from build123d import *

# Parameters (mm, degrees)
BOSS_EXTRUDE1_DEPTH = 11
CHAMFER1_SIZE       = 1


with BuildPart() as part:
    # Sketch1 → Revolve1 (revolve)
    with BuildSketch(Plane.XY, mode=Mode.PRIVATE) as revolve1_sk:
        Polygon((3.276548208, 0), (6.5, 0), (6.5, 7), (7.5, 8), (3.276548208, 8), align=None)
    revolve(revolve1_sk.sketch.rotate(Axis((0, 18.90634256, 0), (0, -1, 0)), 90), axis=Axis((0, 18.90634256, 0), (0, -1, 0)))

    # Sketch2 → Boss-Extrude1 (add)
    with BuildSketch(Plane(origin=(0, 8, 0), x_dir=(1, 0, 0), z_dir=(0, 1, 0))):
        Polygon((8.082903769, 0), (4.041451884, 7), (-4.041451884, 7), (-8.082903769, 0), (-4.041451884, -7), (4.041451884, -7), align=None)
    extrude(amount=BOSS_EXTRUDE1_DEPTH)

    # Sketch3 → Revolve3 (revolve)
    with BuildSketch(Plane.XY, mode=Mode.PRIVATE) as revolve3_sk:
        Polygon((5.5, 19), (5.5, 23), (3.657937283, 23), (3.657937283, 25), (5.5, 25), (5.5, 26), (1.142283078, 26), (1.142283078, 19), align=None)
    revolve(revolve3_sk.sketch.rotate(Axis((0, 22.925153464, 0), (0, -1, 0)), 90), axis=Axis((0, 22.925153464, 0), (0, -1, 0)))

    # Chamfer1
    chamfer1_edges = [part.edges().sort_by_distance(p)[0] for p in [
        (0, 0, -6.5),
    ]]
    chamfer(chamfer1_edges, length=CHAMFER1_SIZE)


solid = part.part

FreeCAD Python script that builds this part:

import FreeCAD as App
import Part
import Sketcher
from FreeCAD import Vector
Q = App.Units.Quantity


def edges_at(feature, points):
    """Names of the edges that pass closest to the given points."""
    edges = feature.Shape.Edges
    near = lambda p: min(range(len(edges)), key=lambda i: edges[i].distToShape(Part.Vertex(*p))[0])
    return sorted({f"Edge{near(p) + 1}" for p in points})

doc = App.newDocument("Part")
body = doc.addObject("PartDesign::Body", "Body")

# Sketch on XY plane
sketch1 = body.newObject("Sketcher::SketchObject", "Sketch")
sketch1.AttachmentSupport = (doc.getObject("XY_Plane"), [""])
sketch1.MapMode = "FlatFace"
sketch1.addGeometry([
    Part.LineSegment(Vector(3.3, 0, 0), Vector(6.5, 0, 0)),  # 0
    Part.LineSegment(Vector(6.5, 0, 0), Vector(6.5, 7, 0)),  # 1
    Part.LineSegment(Vector(6.5, 7, 0), Vector(7.5, 8, 0)),  # 2
    Part.LineSegment(Vector(7.5, 8, 0), Vector(3.3, 8, 0)),  # 3
    Part.LineSegment(Vector(3.3, 8, 0), Vector(3.3, 0, 0)),  # 4
], False)
sketch1.addConstraint([
    Sketcher.Constraint("Coincident", 0, 2, 1, 1),
    Sketcher.Constraint("Coincident", 1, 2, 2, 1),
    Sketcher.Constraint("Coincident", 2, 2, 3, 1),
    Sketcher.Constraint("Coincident", 3, 2, 4, 1),
    Sketcher.Constraint("Coincident", 4, 2, 0, 1),
    Sketcher.Constraint("Horizontal", 0),
    Sketcher.Constraint("Vertical", 1),
    Sketcher.Constraint("Horizontal", 3),
    Sketcher.Constraint("Vertical", 4),
    Sketcher.Constraint("PointOnObject", 0, 2, -1),
    Sketcher.Constraint("DistanceY", 1, 1, 1, 2, Q("7 mm")),
    Sketcher.Constraint("DistanceY", 4, 2, 4, 1, Q("8 mm")),
    Sketcher.Constraint("Angle", 2, Q("45 deg")),
    Sketcher.Constraint("DistanceX", -1, 1, 0, 2, Q("6.5 mm")),
    Sketcher.Constraint("DistanceX", 0, 1, 0, 2, Q("3.223452 mm")),
])
revolution = body.newObject("PartDesign::Revolution", "Revolution")
revolution.Profile = sketch1
revolution.ReferenceAxis = (sketch1, ["V_Axis"])
revolution.Angle = 360

# Sketch on XZ plane
sketch2 = body.newObject("Sketcher::SketchObject", "Sketch001")
sketch2.AttachmentSupport = (doc.getObject("XZ_Plane"), [""])
sketch2.MapMode = "FlatFace"
sketch2.AttachmentOffset = App.Placement(Vector(0, 0, -8), App.Rotation())
sketch2.addGeometry([
    Part.LineSegment(Vector(8, 0, 0), Vector(4, -7, 0)),  # 0
    Part.LineSegment(Vector(4, -7, 0), Vector(-4, -7, 0)),  # 1
    Part.LineSegment(Vector(-4, -7, 0), Vector(-8, 0, 0)),  # 2
    Part.LineSegment(Vector(-8, 0, 0), Vector(-4, 7, 0)),  # 3
    Part.LineSegment(Vector(-4, 7, 0), Vector(4, 7, 0)),  # 4
    Part.LineSegment(Vector(4, 7, 0), Vector(8, 0, 0)),  # 5
], False)
sketch2.addConstraint([
    Sketcher.Constraint("Coincident", 0, 2, 1, 1),
    Sketcher.Constraint("Coincident", 1, 2, 2, 1),
    Sketcher.Constraint("Coincident", 2, 2, 3, 1),
    Sketcher.Constraint("Coincident", 3, 2, 4, 1),
    Sketcher.Constraint("Coincident", 4, 2, 5, 1),
    Sketcher.Constraint("Coincident", 5, 2, 0, 1),
    Sketcher.Constraint("Horizontal", 1),
    Sketcher.Constraint("Horizontal", 4),
    Sketcher.Constraint("Symmetric", 0, 2, 3, 2, -1, 1),
    Sketcher.Constraint("Symmetric", 2, 2, 5, 2, -1, 1),
    Sketcher.Constraint("PointOnObject", 2, 2, -1),
    Sketcher.Constraint("Parallel", 2, 5),
    Sketcher.Constraint("Vertical", 1, 2, 3, 2),
    Sketcher.Constraint("Angle", 0, Q("-120 deg")),
    Sketcher.Constraint("DistanceY", 0, 2, -1, 1, Q("7 mm")),
    Sketcher.Constraint("DistanceX", 1, 2, 1, 1, Q("8.082904 mm")),
])
pad1 = body.newObject("PartDesign::Pad", "Pad")
pad1.Profile = sketch2
pad1.Length = 11
pad1.Reversed = True

# Sketch on XY plane
sketch3 = body.newObject("Sketcher::SketchObject", "Sketch002")
sketch3.AttachmentSupport = (doc.getObject("XY_Plane"), [""])
sketch3.MapMode = "FlatFace"
sketch3.addGeometry([
    Part.LineSegment(Vector(5.5, 19, 0), Vector(5.5, 23, 0)),  # 0
    Part.LineSegment(Vector(5.5, 23, 0), Vector(3.7, 23, 0)),  # 1
    Part.LineSegment(Vector(3.7, 23, 0), Vector(3.7, 25, 0)),  # 2
    Part.LineSegment(Vector(3.7, 25, 0), Vector(5.5, 25, 0)),  # 3
    Part.LineSegment(Vector(5.5, 25, 0), Vector(5.5, 26, 0)),  # 4
    Part.LineSegment(Vector(5.5, 26, 0), Vector(1.1, 26, 0)),  # 5
    Part.LineSegment(Vector(1.1, 26, 0), Vector(1.1, 19, 0)),  # 6
    Part.LineSegment(Vector(1.1, 19, 0), Vector(5.5, 19, 0)),  # 7
], False)
sketch3.addConstraint([
    Sketcher.Constraint("Coincident", 0, 2, 1, 1),
    Sketcher.Constraint("Coincident", 1, 2, 2, 1),
    Sketcher.Constraint("Coincident", 2, 2, 3, 1),
    Sketcher.Constraint("Coincident", 3, 2, 4, 1),
    Sketcher.Constraint("Coincident", 4, 2, 5, 1),
    Sketcher.Constraint("Coincident", 5, 2, 6, 1),
    Sketcher.Constraint("Coincident", 6, 2, 7, 1),
    Sketcher.Constraint("Coincident", 7, 2, 0, 1),
    Sketcher.Constraint("Vertical", 0),
    Sketcher.Constraint("Horizontal", 1),
    Sketcher.Constraint("Vertical", 2),
    Sketcher.Constraint("Horizontal", 3),
    Sketcher.Constraint("Vertical", 4),
    Sketcher.Constraint("Horizontal", 5),
    Sketcher.Constraint("Vertical", 6),
    Sketcher.Constraint("Horizontal", 7),
    Sketcher.Constraint("Vertical", 0, 2, 3, 2),
    Sketcher.Constraint("DistanceY", 0, 1, 0, 2, Q("4 mm")),
    Sketcher.Constraint("DistanceY", 2, 1, 2, 2, Q("2 mm")),
    Sketcher.Constraint("DistanceY", 4, 1, 4, 2, Q("1 mm")),
    Sketcher.Constraint("DistanceY", -1, 1, 0, 2, Q("23 mm")),
    Sketcher.Constraint("DistanceX", -1, 1, 0, 2, Q("5.5 mm")),
    Sketcher.Constraint("DistanceX", 1, 2, 1, 1, Q("1.842063 mm")),
    Sketcher.Constraint("DistanceX", 5, 2, 5, 1, Q("4.357717 mm")),
])
revolution2 = body.newObject("PartDesign::Revolution", "Revolution001")
revolution2.Profile = sketch3
revolution2.ReferenceAxis = (sketch3, ["V_Axis"])
revolution2.Angle = 360
doc.recompute()

chamfer = body.newObject("PartDesign::Chamfer", "Chamfer")
chamfer.Base = (revolution2, edges_at(revolution2, [(0, 0, -6.5)]))
chamfer.Size = 1

doc.recompute()
